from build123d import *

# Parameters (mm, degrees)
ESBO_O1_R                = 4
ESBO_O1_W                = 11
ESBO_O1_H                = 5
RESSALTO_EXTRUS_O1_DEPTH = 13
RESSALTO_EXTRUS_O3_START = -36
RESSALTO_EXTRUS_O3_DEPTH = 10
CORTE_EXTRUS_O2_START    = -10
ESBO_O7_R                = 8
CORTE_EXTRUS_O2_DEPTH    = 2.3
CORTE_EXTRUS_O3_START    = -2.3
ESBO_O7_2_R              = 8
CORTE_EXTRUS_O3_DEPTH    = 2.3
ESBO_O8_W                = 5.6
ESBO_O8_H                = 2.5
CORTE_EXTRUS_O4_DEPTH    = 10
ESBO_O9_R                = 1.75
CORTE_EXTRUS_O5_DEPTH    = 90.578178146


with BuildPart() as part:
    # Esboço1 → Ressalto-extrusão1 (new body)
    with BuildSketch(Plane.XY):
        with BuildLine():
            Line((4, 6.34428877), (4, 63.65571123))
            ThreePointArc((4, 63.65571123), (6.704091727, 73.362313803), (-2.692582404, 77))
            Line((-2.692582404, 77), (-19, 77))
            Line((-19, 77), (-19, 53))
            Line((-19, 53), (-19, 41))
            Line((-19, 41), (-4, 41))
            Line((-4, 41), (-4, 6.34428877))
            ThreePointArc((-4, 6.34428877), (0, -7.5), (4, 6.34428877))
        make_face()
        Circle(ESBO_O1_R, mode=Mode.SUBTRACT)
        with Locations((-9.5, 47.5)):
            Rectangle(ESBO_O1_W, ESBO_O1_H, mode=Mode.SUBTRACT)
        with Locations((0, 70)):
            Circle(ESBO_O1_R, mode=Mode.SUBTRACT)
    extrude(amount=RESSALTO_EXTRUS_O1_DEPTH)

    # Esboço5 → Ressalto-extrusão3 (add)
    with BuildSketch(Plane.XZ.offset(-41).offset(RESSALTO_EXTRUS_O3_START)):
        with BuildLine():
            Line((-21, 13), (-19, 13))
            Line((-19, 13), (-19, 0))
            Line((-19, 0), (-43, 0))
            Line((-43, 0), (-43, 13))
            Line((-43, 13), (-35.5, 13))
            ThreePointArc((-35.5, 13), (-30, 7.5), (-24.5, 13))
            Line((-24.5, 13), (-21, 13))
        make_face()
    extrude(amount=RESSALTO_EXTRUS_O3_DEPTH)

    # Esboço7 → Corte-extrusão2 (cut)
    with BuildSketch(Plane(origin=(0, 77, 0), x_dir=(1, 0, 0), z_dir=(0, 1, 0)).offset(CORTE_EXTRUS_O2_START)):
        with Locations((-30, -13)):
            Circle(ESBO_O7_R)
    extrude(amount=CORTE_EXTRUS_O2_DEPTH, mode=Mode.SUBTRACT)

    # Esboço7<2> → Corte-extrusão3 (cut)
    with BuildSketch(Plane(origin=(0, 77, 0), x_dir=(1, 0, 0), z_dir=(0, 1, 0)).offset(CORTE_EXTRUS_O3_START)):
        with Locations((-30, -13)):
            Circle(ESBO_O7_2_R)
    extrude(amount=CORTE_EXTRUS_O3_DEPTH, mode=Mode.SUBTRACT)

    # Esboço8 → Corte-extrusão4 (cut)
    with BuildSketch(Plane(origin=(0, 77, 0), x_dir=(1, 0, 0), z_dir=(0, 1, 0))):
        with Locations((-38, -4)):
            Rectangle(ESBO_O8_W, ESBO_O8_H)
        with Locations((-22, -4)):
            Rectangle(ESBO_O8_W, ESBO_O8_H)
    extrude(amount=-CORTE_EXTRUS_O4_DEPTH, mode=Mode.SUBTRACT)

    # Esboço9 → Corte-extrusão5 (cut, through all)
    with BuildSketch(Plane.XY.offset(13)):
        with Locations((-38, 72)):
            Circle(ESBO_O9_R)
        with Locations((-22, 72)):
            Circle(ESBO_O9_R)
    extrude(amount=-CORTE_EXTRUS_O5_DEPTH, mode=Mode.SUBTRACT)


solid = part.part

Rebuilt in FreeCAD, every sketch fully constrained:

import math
import FreeCAD as App
import Part
import Sketcher

V = App.Vector

doc = App.newDocument("Part")
body = doc.addObject("PartDesign::Body", "Body")

# Sketch on XY plane
sketch1 = body.newObject("Sketcher::SketchObject", "Sketch")
sketch1.AttachmentSupport = (doc.getObject("XY_Plane"), [""])
sketch1.MapMode = "FlatFace"
sketch1.addGeometry([
    Part.LineSegment(V(4, 6.3, 0), V(4, 63.7, 0)),  # 0
    Part.ArcOfCircle(Part.Circle(V(0, 70, 0), V(0, 0, 1), 7.5), math.radians(-58), math.radians(111)),  # 1
    Part.LineSegment(V(-2.7, 77, 0), V(-19, 77, 0)),  # 2
    Part.LineSegment(V(-19, 77, 0), V(-19, 41, 0)),  # 3
    Part.LineSegment(V(-19, 41, 0), V(-4, 41, 0)),  # 4
    Part.LineSegment(V(-4, 41, 0), V(-4, 6.3, 0)),  # 5
    Part.ArcOfCircle(Part.Circle(V(0, 0, 0), V(0, 0, 1), 7.5), math.radians(122), math.radians(418)),  # 6
    Part.Circle(V(0, 0, 0), V(0, 0, 1), 4),  # 7
    Part.LineSegment(V(-4, 45, 0), V(-15, 45, 0)),  # 8
    Part.LineSegment(V(-15, 45, 0), V(-15, 50, 0)),  # 9
    Part.LineSegment(V(-15, 50, 0), V(-4, 50, 0)),  # 10
    Part.LineSegment(V(-4, 50, 0), V(-4, 45, 0)),  # 11
    Part.Circle(V(0, 70, 0), V(0, 0, 1), 4),  # 12
], False)
sketch1.addConstraint([
    Sketcher.Constraint("Coincident", 0, 2, 1, 1),
    Sketcher.Constraint("Coincident", 1, 2, 2, 1),
    Sketcher.Constraint("Coincident", 2, 2, 3, 1),
    Sketcher.Constraint("Coincident", 3, 2, 4, 1),
    Sketcher.Constraint("Coincident", 4, 2, 5, 1),
    Sketcher.Constraint("Coincident", 5, 2, 6, 1),
    Sketcher.Constraint("Coincident", 6, 2, 0, 1),
    Sketcher.Constraint("Coincident", 8, 2, 9, 1),
    Sketcher.Constraint("Coincident", 9, 2, 10, 1),
    Sketcher.Constraint("Coincident", 10, 2, 11, 1),
    Sketcher.Constraint("Coincident", 11, 2, 8, 1),
    Sketcher.Constraint("Vertical", 0),
    Sketcher.Constraint("Horizontal", 2),
    Sketcher.Constraint("Vertical", 3),
    Sketcher.Constraint("Horizontal", 4),
    Sketcher.Constraint("Vertical", 5),
    Sketcher.Constraint("Horizontal", 8),
    Sketcher.Constraint("Vertical", 9),
    Sketcher.Constraint("Horizontal", 10),
    Sketcher.Constraint("Vertical", 11),
    Sketcher.Constraint("Coincident", 6, 3, -1, 1),
    Sketcher.Constraint("Coincident", 7, 3, -1, 1),
    Sketcher.Constraint("Coincident", 12, 3, 1, 3),
    Sketcher.Constraint("Equal", 1, 6),
    Sketcher.Constraint("Equal", 7, 12),
    Sketcher.Constraint("PointOnObject", 1, 3, -2),
    Sketcher.Constraint("Horizontal", 5, 2, 6, 2),
    Sketcher.Constraint("Vertical", 5, 2, 10, 2),
    Sketcher.Constraint("Diameter", 7, 8.0),
    Sketcher.Constraint("Radius", 1, 7.5),
    Sketcher.Constraint("DistanceX", 4, 1, 4, 2, 15.0),
    Sketcher.Constraint("DistanceX", 8, 2, 8, 1, 11.0),
    Sketcher.Constraint("DistanceY", 3, 2, 3, 1, 36.0),
    Sketcher.Constraint("DistanceY", 9, 1, 9, 2, 5.0),
    Sketcher.Constraint("DistanceY", -1, 1, 1, 3, 70.0),
    Sketcher.Constraint("DistanceX", -1, 1, 0, 2, 4.0),
    Sketcher.Constraint("DistanceY", -1, 1, 1, 2, 77.0),
    Sketcher.Constraint("DistanceY", -1, 1, 8, 2, 45.0),
])
pad1 = body.newObject("PartDesign::Pad", "Pad")
pad1.Profile = sketch1
pad1.Length = 13

# Sketch on XZ plane
sketch2 = body.newObject("Sketcher::SketchObject", "Sketch001")
sketch2.AttachmentSupport = (doc.getObject("XZ_Plane"), [""])
sketch2.MapMode = "FlatFace"
sketch2.AttachmentOffset = App.Placement(V(0, 0, -77), App.Rotation())
sketch2.addGeometry([
    Part.LineSegment(V(-19, 0, 0), V(-19, 13, 0)),  # 0
    Part.LineSegment(V(-19, 13, 0), V(-24, 13, 0)),  # 1
    Part.ArcOfCircle(Part.Circle(V(-30, 13, 0), V(0, 0, 1), 6), math.radians(180), math.radians(360)),  # 2
    Part.LineSegment(V(-36, 13, 0), V(-43, 13, 0)),  # 3
    Part.LineSegment(V(-43, 13, 0), V(-43, 0, 0)),  # 4
    Part.LineSegment(V(-43, 0, 0), V(-19, 0, 0)),  # 5
], False)
sketch2.addConstraint([
    Sketcher.Constraint("Coincident", 0, 2, 1, 1),
    Sketcher.Constraint("Coincident", 1, 2, 2, 2),
    Sketcher.Constraint("Coincident", 2, 1, 3, 1),
    Sketcher.Constraint("Coincident", 3, 2, 4, 1),
    Sketcher.Constraint("Coincident", 4, 2, 5, 1),
    Sketcher.Constraint("Coincident", 5, 2, 0, 1),
    Sketcher.Constraint("Vertical", 0),
    Sketcher.Constraint("Horizontal", 1),
    Sketcher.Constraint("Horizontal", 3),
    Sketcher.Constraint("Vertical", 4),
    Sketcher.Constraint("Horizontal", 5),
    Sketcher.Constraint("PointOnObject", 4, 2, -1),
    Sketcher.Constraint("Horizontal", 2, 3, 0, 2),
    Sketcher.Constraint("Horizontal", 1, 2, 2, 1),
    Sketcher.Constraint("Radius", 2, 5.5),
    Sketcher.Constraint("DistanceX", 5, 1, 5, 2, 24.0),
    Sketcher.Constraint("DistanceY", 0, 1, 0, 2, 13.0),
    Sketcher.Constraint("DistanceX", 1, 2, 1, 1, 5.5),
    Sketcher.Constraint("DistanceX", 2, 3, -1, 1, 30.0),
])
pad2 = body.newObject("PartDesign::Pad", "Pad001")
pad2.Profile = sketch2
pad2.Length = 10

# Sketch on XZ plane
sketch3 = body.newObject("Sketcher::SketchObject", "Sketch002")
sketch3.AttachmentSupport = (doc.getObject("XZ_Plane"), [""])
sketch3.MapMode = "FlatFace"
sketch3.AttachmentOffset = App.Placement(V(0, 0, -67), App.Rotation())
sketch3.addGeometry(Part.Circle(V(-30, 13, 0), V(0, 0, 1), 8), False)
sketch3.addConstraint([
    Sketcher.Constraint("Diameter", 0, 16.0),
    Sketcher.Constraint("DistanceX", 0, 3, -1, 1, 30.0),
    Sketcher.Constraint("DistanceY", -1, 1, 0, 3, 13.0),
])
pocket1 = body.newObject("PartDesign::Pocket", "Pocket")
pocket1.Profile = sketch3
pocket1.Length = 2.3

# Sketch on XZ plane
sketch4 = body.newObject("Sketcher::SketchObject", "Sketch003")
sketch4.AttachmentSupport = (doc.getObject("XZ_Plane"), [""])
sketch4.MapMode = "FlatFace"
sketch4.AttachmentOffset = App.Placement(V(0, 0, -74.7), App.Rotation())
sketch4.addGeometry(Part.Circle(V(-30, 13, 0), V(0, 0, 1), 8), False)
sketch4.addConstraint([
    Sketcher.Constraint("Diameter", 0, 16.0),
    Sketcher.Constraint("DistanceX", 0, 3, -1, 1, 30.0),
    Sketcher.Constraint("DistanceY", -1, 1, 0, 3, 13.0),
])
pocket2 = body.newObject("PartDesign::Pocket", "Pocket001")
pocket2.Profile = sketch4
pocket2.Length = 2.3

# Sketch on XZ plane
sketch5 = body.newObject("Sketcher::SketchObject", "Sketch004")
sketch5.AttachmentSupport = (doc.getObject("XZ_Plane"), [""])
sketch5.MapMode = "FlatFace"
sketch5.AttachmentOffset = App.Placement(V(0, 0, -77), App.Rotation())
sketch5.addGeometry([
    Part.LineSegment(V(-40.8, 2.8, 0), V(-40.8, 5.2, 0)),  # 0
    Part.LineSegment(V(-40.8, 5.2, 0), V(-35.2, 5.2, 0)),  # 1
    Part.LineSegment(V(-35.2, 5.2, 0), V(-35.2, 2.8, 0)),  # 2
    Part.LineSegment(V(-35.2, 2.8, 0), V(-40.8, 2.8, 0)),  # 3
    Part.LineSegment(V(-24.8, 2.8, 0), V(-24.8, 5.2, 0)),  # 4
    Part.LineSegment(V(-24.8, 5.2, 0), V(-19.2, 5.2, 0)),  # 5
    Part.LineSegment(V(-19.2, 5.2, 0), V(-19.2, 2.8, 0)),  # 6
    Part.LineSegment(V(-19.2, 2.8, 0), V(-24.8, 2.8, 0)),  # 7
], False)
sketch5.addConstraint([
    Sketcher.Constraint("Coincident", 0, 2, 1, 1),
    Sketcher.Constraint("Coincident", 1, 2, 2, 1),
    Sketcher.Constraint("Coincident", 2, 2, 3, 1),
    Sketcher.Constraint("Coincident", 3, 2, 0, 1),
    Sketcher.Constraint("Coincident", 4, 2, 5, 1),
    Sketcher.Constraint("Coincident", 5, 2, 6, 1),
    Sketcher.Constraint("Coincident", 6, 2, 7, 1),
    Sketcher.Constraint("Coincident", 7, 2, 4, 1),
    Sketcher.Constraint("Vertical", 0),
    Sketcher.Constraint("Horizontal", 1),
    Sketcher.Constraint("Vertical", 2),
    Sketcher.Constraint("Horizontal", 3),
    Sketcher.Constraint("Vertical", 4),
    Sketcher.Constraint("Horizontal", 5),
    Sketcher.Constraint("Vertical", 6),
    Sketcher.Constraint("Horizontal", 7),
    Sketcher.Constraint("Horizontal", 1, 2, 4, 2),
    Sketcher.Constraint("Horizontal", 3, 2, 6, 2),
    Sketcher.Constraint("Equal", 3, 5),
    Sketcher.Constraint("DistanceX", 1, 1, 1, 2, 5.6),
    Sketcher.Constraint("DistanceY", 0, 1, 0, 2, 2.5),
    Sketcher.Constraint("DistanceX", 0, 2, 4, 2, 16.0),
    Sketcher.Constraint("DistanceX", 0, 2, -1, 1, 40.8),
    Sketcher.Constraint("DistanceY", -1, 1, 0, 2, 5.25),
])
pocket3 = body.newObject("PartDesign::Pocket", "Pocket002")
pocket3.Profile = sketch5
pocket3.Length = 10
pocket3.Reversed = True

# Sketch on XY plane
sketch6 = body.newObject("Sketcher::SketchObject", "Sketch005")
sketch6.AttachmentSupport = (doc.getObject("XY_Plane"), [""])
sketch6.MapMode = "FlatFace"
sketch6.AttachmentOffset = App.Placement(V(0, 0, 13), App.Rotation())
sketch6.addGeometry([
    Part.Circle(V(-38, 72, 0), V(0, 0, 1), 1.8),
    Part.Circle(V(-22, 72, 0), V(0, 0, 1), 1.8),
], False)
sketch6.addConstraint([
    Sketcher.Constraint("Equal", 0, 1),
    Sketcher.Constraint("Horizontal", 0, 3, 1, 3),
    Sketcher.Constraint("Diameter", 0, 3.5),
    Sketcher.Constraint("DistanceX", 0, 3, -1, 1, 38.0),
    Sketcher.Constraint("DistanceY", -1, 1, 0, 3, 72.0),
    Sketcher.Constraint("DistanceX", 1, 3, -1, 1, 22.0),
])
pocket4 = body.newObject("PartDesign::Pocket", "Pocket003")
pocket4.Profile = sketch6
pocket4.Type = "ThroughAll"

doc.recompute()
